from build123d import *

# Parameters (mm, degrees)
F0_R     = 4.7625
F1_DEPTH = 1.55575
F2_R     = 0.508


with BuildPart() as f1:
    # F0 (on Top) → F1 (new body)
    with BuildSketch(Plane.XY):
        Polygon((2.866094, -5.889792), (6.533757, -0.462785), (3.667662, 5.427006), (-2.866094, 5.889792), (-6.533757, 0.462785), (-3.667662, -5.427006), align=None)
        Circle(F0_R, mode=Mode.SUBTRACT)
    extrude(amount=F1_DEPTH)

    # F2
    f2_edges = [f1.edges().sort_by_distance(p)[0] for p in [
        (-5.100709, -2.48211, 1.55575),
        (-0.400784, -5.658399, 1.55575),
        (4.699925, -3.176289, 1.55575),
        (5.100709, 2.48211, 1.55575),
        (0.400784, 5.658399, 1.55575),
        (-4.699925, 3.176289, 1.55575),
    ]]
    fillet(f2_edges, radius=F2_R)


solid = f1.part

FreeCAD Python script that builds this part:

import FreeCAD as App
import Part
import Sketcher

V = App.Vector
Q = App.Units.Quantity


def edges_at(feature, points):
    """Names of the edges that pass closest to the given points."""
    edges = feature.Shape.Edges
    near = lambda p: min(range(len(edges)), key=lambda i: edges[i].distToShape(Part.Vertex(*p))[0])
    return sorted({f"Edge{near(p) + 1}" for p in points})

doc = App.newDocument("Part")
body = doc.addObject("PartDesign::Body", "Body")

# Sketch on XY plane
sketch1 = doc.addObject("Sketcher::SketchObject", "Sketch")
body.addObject(sketch1)
sketch1.AttachmentSupport = (doc.XY_Plane, [""])
sketch1.MapMode = "FlatFace"
sketch1.addGeometry([
    Part.LineSegment(V(2.9, -5.9, 0), V(6.5, -0.5, 0)),  # 0
    Part.LineSegment(V(6.5, -0.5, 0), V(3.7, 5.4, 0)),  # 1
    Part.LineSegment(V(3.7, 5.4, 0), V(-2.9, 5.9, 0)),  # 2
    Part.LineSegment(V(-2.9, 5.9, 0), V(-6.5, 0.5, 0)),  # 3
    Part.LineSegment(V(-6.5, 0.5, 0), V(-3.7, -5.4, 0)),  # 4
    Part.LineSegment(V(-3.7, -5.4, 0), V(2.9, -5.9, 0)),  # 5
    Part.Circle(V(0, 0, 0), V(0, 0, 1), 4.8),  # 6
], False)
sketch1.addConstraint([
    Sketcher.Constraint("Coincident", 0, 2, 1, 1),
    Sketcher.Constraint("Coincident", 1, 2, 2, 1),
    Sketcher.Constraint("Coincident", 2, 2, 3, 1),
    Sketcher.Constraint("Coincident", 3, 2, 4, 1),
    Sketcher.Constraint("Coincident", 4, 2, 5, 1),
    Sketcher.Constraint("Coincident", 5, 2, 0, 1),
    Sketcher.Constraint("Coincident", 6, 3, -1, 1),
    Sketcher.Constraint("Symmetric", 0, 2, 3, 2, -1, 1),
    Sketcher.Constraint("Symmetric", 1, 2, 4, 2, -1, 1),
    Sketcher.Constraint("Symmetric", 2, 2, 5, 2, -1, 1),
    Sketcher.Constraint("Equal", 0, 1),
    Sketcher.Constraint("Equal", 1, 2),
    Sketcher.Constraint("Diameter", 6, Q("0.375 in")),
    Sketcher.Constraint("DistanceX", -1, 1, 1, 2, Q("3.667662 mm")),
    Sketcher.Constraint("DistanceY", 0, 2, 1, 2, Q("5.889791 mm")),
    Sketcher.Constraint("DistanceX", 2, 2, 0, 2, Q("9.399851 mm")),
    Sketcher.Constraint("DistanceX", 3, 2, 1, 2, Q("10.201419 mm")),
])
pad1 = doc.addObject("PartDesign::Pad", "Pad")
body.addObject(pad1)
pad1.Profile = sketch1
pad1.Length = 1.55575
doc.recompute()

fillet = doc.addObject("PartDesign::Fillet", "Fillet")
body.addObject(fillet)
fillet.Base = (pad1, edges_at(pad1, [
    (-5.101, -2.482, 1.556),
    (-0.401, -5.658, 1.556),
    (4.7, -3.176, 1.556),
    (5.101, 2.482, 1.556),
    (0.401, 5.658, 1.556),
    (-4.7, 3.176, 1.556),
]))
fillet.Radius = Q("0.02 in")

doc.recompute()
